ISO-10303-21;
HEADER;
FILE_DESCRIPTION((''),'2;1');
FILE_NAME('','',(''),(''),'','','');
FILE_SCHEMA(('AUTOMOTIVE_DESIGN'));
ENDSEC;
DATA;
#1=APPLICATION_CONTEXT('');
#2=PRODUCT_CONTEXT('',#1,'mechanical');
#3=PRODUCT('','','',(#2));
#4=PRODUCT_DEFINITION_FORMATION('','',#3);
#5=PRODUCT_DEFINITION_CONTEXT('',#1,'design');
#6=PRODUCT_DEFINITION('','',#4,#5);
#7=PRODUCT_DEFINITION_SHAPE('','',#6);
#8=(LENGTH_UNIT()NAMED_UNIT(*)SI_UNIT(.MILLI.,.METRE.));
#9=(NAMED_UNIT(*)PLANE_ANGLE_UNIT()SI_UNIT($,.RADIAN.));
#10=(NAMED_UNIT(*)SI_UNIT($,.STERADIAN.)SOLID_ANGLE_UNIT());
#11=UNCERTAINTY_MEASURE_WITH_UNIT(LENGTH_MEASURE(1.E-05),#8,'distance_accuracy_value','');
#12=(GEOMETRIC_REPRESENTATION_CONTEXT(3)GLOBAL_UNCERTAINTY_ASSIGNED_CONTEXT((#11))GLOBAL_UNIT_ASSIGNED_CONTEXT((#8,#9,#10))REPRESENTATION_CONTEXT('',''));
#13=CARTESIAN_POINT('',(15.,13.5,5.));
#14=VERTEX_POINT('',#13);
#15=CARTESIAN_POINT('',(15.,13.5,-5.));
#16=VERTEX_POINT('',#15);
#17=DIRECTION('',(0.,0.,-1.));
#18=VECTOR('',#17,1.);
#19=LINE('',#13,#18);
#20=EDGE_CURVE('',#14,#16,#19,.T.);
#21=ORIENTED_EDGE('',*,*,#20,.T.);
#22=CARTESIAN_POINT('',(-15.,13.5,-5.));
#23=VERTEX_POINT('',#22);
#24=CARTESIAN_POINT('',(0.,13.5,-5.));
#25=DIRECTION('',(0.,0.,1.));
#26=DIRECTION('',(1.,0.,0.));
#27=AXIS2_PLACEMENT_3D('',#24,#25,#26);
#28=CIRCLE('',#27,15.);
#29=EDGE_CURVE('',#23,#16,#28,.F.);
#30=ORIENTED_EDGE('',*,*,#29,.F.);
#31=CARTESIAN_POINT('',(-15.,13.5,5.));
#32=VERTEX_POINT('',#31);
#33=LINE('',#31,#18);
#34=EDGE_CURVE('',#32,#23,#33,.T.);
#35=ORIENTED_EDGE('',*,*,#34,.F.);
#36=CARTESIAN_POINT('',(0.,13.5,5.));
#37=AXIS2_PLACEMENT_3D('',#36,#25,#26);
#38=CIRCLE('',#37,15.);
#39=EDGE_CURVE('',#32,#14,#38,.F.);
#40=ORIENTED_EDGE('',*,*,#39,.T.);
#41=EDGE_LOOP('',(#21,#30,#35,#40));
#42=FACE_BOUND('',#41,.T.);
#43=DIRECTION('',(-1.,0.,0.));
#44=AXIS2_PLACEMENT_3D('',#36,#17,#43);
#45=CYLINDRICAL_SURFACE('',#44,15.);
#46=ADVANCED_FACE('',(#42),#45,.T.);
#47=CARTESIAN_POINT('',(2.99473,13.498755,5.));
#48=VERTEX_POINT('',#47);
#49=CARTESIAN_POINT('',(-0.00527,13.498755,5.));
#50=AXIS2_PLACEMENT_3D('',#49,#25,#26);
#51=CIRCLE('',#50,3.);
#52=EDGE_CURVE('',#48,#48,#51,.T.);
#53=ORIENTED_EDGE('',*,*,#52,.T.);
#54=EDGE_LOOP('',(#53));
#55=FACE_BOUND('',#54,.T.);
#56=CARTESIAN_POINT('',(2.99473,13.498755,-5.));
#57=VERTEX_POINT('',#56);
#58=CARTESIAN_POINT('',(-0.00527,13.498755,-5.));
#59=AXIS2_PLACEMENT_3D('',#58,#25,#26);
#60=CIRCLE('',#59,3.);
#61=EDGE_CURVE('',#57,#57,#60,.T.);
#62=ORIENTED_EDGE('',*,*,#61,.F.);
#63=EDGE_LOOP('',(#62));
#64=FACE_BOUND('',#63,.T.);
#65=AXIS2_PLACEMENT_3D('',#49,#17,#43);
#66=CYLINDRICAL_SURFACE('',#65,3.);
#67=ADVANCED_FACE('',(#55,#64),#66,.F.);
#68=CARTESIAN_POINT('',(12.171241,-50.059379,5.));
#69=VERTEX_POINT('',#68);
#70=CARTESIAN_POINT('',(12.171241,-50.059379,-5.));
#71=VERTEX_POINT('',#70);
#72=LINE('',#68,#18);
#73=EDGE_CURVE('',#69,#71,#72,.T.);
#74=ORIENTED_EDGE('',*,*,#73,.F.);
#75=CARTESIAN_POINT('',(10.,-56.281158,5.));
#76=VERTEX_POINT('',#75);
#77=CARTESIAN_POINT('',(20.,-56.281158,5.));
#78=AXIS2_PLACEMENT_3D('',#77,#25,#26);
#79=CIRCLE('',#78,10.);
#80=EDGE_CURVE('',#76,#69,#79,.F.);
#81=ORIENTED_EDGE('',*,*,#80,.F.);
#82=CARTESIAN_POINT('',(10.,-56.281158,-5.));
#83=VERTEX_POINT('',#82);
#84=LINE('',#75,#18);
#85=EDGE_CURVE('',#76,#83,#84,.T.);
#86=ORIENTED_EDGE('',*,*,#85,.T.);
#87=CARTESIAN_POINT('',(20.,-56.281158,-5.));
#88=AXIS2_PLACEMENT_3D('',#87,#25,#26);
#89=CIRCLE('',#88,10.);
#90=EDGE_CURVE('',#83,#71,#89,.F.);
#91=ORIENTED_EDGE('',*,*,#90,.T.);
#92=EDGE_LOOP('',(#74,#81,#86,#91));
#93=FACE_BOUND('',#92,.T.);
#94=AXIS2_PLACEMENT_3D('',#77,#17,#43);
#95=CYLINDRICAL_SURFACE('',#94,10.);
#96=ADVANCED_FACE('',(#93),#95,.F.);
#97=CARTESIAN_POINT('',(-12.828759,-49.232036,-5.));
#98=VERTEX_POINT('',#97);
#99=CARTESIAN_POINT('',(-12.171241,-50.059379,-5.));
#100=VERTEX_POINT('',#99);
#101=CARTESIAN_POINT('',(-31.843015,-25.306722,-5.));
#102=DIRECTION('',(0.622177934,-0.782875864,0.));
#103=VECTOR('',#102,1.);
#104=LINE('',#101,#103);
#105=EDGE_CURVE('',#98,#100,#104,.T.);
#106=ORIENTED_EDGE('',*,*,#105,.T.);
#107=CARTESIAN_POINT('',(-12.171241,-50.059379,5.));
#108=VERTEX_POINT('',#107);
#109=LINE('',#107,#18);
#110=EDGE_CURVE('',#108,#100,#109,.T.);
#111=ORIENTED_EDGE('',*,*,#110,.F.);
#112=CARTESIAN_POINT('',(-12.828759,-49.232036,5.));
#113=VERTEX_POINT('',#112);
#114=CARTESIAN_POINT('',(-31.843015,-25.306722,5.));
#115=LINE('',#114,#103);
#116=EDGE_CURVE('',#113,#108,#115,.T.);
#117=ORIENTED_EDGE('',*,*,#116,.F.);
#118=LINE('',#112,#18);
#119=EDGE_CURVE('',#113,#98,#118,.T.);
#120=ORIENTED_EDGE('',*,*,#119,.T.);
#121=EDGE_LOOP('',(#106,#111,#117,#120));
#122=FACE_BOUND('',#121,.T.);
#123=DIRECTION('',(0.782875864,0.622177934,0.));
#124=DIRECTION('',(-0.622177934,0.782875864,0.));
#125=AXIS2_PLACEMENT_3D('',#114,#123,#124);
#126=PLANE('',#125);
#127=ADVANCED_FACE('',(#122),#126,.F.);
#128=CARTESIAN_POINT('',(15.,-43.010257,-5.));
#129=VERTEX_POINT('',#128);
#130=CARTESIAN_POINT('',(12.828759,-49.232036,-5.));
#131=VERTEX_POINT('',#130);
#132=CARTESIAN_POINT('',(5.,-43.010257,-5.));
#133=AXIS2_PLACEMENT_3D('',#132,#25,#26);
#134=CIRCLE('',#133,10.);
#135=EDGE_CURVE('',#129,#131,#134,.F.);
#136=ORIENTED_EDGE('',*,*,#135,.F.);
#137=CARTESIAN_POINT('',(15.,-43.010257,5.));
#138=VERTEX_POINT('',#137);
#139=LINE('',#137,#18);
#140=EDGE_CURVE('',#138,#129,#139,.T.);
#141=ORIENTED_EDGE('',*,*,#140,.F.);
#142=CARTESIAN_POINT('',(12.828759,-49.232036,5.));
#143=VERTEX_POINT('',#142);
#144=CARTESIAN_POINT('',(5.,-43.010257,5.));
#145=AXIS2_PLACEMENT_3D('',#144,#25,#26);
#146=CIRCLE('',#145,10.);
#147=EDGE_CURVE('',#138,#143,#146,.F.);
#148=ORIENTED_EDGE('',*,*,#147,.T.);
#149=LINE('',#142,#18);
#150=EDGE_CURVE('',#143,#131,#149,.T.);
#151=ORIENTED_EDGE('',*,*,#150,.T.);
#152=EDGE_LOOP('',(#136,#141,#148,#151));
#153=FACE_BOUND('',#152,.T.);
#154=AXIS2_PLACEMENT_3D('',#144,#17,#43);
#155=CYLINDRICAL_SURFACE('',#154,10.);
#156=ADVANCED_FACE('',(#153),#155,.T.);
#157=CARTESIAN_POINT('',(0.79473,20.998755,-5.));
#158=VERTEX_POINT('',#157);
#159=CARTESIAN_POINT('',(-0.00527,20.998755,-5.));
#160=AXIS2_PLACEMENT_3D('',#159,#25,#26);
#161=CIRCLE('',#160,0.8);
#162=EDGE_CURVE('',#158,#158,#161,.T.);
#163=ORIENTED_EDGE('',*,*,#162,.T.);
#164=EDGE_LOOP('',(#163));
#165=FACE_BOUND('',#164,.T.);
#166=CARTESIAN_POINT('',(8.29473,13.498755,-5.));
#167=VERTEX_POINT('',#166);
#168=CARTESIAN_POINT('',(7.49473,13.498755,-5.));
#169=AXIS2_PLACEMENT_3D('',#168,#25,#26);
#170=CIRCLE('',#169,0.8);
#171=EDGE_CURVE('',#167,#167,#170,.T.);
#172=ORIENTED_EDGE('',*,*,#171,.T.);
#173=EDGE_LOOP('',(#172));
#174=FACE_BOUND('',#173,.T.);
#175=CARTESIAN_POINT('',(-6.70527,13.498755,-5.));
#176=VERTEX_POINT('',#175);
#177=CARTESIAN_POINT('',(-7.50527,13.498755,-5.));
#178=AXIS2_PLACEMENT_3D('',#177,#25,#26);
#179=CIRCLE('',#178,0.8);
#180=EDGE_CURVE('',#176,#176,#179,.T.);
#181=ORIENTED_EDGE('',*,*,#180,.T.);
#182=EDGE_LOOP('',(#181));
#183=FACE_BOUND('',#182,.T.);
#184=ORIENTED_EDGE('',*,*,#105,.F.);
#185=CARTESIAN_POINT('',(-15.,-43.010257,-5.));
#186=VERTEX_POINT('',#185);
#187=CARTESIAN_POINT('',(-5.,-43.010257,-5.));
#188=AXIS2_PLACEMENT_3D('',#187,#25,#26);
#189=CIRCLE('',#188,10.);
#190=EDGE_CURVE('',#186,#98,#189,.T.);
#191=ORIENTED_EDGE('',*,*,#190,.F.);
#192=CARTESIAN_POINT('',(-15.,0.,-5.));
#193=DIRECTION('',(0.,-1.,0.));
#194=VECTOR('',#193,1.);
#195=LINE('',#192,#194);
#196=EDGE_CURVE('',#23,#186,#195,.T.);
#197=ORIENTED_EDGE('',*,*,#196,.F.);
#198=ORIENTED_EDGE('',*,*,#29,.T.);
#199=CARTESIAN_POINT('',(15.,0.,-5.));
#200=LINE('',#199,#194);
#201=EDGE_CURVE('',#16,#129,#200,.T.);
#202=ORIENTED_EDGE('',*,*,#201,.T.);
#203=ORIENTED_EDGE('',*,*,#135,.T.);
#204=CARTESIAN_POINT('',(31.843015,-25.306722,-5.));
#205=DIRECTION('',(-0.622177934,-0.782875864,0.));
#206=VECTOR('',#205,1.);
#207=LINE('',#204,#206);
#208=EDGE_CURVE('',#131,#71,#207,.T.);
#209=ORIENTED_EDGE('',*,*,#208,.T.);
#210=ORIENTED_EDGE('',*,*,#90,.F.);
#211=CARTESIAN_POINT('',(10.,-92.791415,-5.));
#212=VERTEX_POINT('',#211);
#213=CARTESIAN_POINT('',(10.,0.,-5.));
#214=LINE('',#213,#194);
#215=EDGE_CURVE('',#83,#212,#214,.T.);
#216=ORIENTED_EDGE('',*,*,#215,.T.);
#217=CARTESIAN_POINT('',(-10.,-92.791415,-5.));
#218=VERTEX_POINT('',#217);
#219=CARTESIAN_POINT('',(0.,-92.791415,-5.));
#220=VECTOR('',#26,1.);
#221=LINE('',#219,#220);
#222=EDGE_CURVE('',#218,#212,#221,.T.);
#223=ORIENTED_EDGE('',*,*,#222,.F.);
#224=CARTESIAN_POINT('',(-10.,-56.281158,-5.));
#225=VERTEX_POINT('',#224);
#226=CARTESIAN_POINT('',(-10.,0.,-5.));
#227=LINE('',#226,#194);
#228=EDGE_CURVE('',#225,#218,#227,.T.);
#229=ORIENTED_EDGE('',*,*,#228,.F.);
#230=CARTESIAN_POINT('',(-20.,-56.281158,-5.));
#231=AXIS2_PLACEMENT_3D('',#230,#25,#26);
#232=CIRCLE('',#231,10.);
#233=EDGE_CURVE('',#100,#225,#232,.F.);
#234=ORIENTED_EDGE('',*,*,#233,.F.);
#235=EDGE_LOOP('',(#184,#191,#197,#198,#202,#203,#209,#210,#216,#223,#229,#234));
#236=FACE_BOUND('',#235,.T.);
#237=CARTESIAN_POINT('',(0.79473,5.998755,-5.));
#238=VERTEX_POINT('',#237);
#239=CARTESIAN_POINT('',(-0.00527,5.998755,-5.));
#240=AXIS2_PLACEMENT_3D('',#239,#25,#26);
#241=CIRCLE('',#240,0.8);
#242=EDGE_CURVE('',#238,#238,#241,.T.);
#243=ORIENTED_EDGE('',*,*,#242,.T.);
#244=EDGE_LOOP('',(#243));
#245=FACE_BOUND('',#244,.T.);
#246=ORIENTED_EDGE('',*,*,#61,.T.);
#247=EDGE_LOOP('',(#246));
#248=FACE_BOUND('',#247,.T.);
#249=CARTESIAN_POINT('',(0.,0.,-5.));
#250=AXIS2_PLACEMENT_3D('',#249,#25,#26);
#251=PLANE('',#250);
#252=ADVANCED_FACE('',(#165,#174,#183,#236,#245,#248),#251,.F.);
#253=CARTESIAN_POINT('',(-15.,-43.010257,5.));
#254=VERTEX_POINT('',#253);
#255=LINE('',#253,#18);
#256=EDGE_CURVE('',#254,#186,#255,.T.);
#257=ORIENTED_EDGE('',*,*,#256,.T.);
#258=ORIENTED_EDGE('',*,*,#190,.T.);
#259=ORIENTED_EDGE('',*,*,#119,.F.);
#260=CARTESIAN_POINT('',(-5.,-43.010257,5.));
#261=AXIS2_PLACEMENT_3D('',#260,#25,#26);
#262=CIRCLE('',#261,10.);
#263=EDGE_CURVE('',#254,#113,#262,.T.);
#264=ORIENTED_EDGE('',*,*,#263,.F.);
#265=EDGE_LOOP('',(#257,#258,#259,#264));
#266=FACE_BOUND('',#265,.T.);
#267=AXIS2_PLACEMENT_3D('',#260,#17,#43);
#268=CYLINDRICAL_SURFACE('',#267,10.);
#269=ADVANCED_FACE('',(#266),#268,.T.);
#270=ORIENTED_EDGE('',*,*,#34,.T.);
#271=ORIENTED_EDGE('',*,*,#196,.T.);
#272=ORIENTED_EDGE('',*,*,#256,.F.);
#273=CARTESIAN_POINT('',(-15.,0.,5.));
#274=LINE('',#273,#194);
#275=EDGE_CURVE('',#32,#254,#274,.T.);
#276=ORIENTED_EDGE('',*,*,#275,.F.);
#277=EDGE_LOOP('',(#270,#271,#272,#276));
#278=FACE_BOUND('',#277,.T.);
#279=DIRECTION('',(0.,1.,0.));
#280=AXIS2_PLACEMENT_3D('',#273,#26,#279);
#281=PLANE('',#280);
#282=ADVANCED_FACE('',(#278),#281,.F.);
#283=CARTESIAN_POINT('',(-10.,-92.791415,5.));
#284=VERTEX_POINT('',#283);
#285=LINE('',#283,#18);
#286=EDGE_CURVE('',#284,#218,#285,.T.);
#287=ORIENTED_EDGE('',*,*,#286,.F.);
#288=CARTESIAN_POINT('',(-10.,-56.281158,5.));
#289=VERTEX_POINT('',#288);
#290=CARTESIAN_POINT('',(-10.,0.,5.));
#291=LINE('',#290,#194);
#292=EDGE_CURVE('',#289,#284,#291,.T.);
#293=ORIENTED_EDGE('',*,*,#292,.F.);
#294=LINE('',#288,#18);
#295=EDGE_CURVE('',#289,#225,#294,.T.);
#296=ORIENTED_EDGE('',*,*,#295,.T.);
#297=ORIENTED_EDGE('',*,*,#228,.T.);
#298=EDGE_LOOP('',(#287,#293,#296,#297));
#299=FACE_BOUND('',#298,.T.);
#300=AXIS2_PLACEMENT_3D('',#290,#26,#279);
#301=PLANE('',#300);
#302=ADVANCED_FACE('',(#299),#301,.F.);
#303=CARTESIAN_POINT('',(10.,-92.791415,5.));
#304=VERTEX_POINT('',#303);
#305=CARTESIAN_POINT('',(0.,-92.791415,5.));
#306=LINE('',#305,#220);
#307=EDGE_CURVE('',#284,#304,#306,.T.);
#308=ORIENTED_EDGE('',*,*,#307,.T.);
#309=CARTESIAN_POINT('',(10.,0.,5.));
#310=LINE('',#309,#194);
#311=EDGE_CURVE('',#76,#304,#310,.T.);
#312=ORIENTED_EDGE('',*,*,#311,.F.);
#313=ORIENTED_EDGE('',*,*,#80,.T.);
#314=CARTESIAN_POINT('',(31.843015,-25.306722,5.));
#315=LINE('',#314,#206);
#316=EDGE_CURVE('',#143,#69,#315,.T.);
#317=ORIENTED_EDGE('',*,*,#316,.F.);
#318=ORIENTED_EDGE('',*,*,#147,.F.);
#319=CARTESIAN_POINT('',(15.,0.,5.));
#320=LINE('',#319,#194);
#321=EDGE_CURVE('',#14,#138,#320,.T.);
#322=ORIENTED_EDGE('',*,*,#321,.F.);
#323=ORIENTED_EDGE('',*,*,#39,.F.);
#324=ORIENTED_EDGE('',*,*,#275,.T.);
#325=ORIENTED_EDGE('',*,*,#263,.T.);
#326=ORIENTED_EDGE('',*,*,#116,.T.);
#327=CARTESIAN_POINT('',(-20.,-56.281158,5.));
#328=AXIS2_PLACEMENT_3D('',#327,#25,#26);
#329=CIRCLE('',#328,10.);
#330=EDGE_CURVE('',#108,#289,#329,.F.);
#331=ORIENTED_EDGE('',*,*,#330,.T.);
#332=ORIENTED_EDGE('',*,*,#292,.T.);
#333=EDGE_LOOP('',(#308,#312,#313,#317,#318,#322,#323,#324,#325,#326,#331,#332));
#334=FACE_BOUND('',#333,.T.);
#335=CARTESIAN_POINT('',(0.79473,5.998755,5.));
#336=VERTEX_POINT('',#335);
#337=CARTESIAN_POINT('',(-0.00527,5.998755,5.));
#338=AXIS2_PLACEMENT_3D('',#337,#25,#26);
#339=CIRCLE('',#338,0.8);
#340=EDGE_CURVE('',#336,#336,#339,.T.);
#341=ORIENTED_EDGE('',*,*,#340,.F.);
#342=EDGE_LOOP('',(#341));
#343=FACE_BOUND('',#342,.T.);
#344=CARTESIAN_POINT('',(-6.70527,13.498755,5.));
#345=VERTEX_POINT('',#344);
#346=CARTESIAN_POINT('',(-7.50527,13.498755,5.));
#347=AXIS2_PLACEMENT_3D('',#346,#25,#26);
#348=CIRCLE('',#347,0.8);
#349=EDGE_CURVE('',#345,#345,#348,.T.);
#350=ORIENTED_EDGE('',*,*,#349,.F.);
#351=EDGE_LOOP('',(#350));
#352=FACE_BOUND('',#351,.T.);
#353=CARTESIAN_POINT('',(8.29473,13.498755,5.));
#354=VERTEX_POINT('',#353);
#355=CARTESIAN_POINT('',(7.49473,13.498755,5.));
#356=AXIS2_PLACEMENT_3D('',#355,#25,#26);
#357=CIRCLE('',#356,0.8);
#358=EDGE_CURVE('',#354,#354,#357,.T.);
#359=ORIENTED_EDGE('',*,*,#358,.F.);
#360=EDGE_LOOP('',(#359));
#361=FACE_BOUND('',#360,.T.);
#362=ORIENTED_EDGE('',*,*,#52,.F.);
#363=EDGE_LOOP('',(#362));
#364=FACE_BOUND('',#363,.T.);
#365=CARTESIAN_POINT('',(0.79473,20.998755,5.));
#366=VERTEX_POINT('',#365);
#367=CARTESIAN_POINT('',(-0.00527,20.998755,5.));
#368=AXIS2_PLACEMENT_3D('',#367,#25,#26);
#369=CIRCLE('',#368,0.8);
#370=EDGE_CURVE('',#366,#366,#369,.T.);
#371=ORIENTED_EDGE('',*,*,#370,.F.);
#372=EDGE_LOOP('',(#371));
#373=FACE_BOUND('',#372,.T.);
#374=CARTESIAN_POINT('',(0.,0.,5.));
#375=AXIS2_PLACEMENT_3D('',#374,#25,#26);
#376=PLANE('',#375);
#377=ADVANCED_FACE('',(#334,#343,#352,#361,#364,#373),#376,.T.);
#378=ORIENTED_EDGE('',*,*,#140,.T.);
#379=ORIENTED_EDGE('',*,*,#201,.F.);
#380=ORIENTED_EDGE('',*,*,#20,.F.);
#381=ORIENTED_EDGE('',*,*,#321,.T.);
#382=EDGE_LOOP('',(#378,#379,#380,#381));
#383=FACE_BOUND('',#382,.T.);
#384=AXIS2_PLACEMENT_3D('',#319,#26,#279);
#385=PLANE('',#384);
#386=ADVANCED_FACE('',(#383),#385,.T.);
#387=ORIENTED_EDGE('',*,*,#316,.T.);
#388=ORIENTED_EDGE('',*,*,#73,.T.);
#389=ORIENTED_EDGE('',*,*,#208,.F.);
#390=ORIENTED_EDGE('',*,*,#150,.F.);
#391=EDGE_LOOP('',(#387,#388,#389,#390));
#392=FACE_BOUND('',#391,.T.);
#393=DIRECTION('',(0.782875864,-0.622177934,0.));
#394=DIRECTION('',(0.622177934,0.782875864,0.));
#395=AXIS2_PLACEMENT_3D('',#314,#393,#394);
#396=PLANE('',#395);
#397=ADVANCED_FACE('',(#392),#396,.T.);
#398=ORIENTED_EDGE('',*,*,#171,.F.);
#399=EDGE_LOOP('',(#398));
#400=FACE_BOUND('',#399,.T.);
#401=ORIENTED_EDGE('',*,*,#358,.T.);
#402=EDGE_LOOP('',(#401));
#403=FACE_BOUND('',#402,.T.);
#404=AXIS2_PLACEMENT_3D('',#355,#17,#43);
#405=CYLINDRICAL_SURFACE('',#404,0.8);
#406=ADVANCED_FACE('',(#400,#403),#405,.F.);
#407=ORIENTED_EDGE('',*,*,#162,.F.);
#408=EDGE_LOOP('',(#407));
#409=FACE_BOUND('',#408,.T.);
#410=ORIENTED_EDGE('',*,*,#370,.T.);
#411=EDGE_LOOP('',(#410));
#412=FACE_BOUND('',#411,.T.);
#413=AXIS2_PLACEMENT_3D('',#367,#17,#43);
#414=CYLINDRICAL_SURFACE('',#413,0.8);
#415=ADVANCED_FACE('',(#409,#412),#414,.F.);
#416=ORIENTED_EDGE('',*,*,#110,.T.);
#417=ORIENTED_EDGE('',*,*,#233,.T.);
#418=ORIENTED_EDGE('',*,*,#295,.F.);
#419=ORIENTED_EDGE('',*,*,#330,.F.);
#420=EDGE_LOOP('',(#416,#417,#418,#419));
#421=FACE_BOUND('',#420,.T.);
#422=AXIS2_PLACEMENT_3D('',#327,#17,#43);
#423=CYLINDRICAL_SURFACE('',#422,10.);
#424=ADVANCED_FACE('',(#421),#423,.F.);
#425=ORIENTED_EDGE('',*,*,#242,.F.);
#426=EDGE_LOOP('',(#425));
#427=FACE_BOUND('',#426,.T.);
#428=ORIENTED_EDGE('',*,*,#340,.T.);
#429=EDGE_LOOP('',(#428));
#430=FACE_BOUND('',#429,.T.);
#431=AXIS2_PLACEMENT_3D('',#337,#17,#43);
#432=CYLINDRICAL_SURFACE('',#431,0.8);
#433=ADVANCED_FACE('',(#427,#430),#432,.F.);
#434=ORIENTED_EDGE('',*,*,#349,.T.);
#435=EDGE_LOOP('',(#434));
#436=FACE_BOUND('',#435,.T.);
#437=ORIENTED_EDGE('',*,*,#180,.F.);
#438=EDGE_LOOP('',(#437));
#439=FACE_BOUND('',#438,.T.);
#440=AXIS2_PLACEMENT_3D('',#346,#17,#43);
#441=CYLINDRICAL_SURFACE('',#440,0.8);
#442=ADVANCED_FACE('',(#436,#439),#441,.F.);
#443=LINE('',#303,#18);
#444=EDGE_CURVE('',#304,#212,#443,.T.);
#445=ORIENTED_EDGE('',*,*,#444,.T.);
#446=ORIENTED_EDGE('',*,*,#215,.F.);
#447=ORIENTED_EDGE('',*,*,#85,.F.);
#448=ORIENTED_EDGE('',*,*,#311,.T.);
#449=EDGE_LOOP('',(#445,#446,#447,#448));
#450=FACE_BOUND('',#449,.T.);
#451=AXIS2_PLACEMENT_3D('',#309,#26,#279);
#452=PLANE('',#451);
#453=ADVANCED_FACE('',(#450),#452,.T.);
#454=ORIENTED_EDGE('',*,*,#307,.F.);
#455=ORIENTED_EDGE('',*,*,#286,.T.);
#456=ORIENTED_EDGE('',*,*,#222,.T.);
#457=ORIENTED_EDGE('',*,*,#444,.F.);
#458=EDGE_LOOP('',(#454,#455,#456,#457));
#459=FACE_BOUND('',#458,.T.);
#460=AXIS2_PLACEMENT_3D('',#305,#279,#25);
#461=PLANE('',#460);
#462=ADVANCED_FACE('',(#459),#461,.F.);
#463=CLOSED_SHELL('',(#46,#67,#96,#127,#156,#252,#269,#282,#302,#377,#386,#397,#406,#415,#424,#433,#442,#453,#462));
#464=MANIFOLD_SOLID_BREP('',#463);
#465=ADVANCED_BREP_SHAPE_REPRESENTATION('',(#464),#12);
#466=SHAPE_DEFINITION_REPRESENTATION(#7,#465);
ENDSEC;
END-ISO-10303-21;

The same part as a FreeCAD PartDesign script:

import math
import FreeCAD as App
import Part
import Sketcher
Q = App.Units.Quantity

doc = App.newDocument("Part")
body = doc.addObject("PartDesign::Body", "Body")

# Sketch on XY plane
sketch1 = body.newObject("Sketcher::SketchObject", "Sketch")
sketch1.AttachmentSupport = (doc.getObject("XY_Plane"), [""])
sketch1.MapMode = "FlatFace"
sketch1.addGeometry([
    Part.LineSegment(App.Vector(-15, 13.5, 0), App.Vector(-15, -43, 0)),  # 0
    Part.ArcOfCircle(Part.Circle(App.Vector(-5, -43, 0), App.Vector(0, 0, 1), 10), math.radians(180), math.radians(218)),  # 1
    Part.LineSegment(App.Vector(-12.8, -49.2, 0), App.Vector(-12.2, -50.1, 0)),  # 2
    Part.ArcOfCircle(Part.Circle(App.Vector(-20, -56.3, 0), App.Vector(0, 0, 1), 10), math.radians(0), math.radians(38)),  # 3
    Part.LineSegment(App.Vector(-10, -56.3, 0), App.Vector(-10, -92.8, 0)),  # 4
    Part.LineSegment(App.Vector(-10, -92.8, 0), App.Vector(10, -92.8, 0)),  # 5
    Part.LineSegment(App.Vector(10, -92.8, 0), App.Vector(10, -56.3, 0)),  # 6
    Part.ArcOfCircle(Part.Circle(App.Vector(20, -56.3, 0), App.Vector(0, 0, 1), 10), math.radians(142), math.radians(180)),  # 7
    Part.LineSegment(App.Vector(12.2, -50.1, 0), App.Vector(12.8, -49.2, 0)),  # 8
    Part.ArcOfCircle(Part.Circle(App.Vector(5, -43, 0), App.Vector(0, 0, 1), 10), math.radians(-38), math.radians(0)),  # 9
    Part.LineSegment(App.Vector(15, -43, 0), App.Vector(15, 13.5, 0)),  # 10
    Part.ArcOfCircle(Part.Circle(App.Vector(0, 13.5, 0), App.Vector(0, 0, 1), 15), math.radians(0), math.radians(180)),  # 11
    Part.Circle(App.Vector(0, 6, 0), App.Vector(0, 0, 1), 0.8),  # 12
    Part.Circle(App.Vector(-7.5, 13.5, 0), App.Vector(0, 0, 1), 0.8),  # 13
    Part.Circle(App.Vector(0, 13.5, 0), App.Vector(0, 0, 1), 3),  # 14
    Part.Circle(App.Vector(7.5, 13.5, 0), App.Vector(0, 0, 1), 0.8),  # 15
    Part.Circle(App.Vector(0, 21, 0), App.Vector(0, 0, 1), 0.8),  # 16
], False)
sketch1.addConstraint([
    Sketcher.Constraint("Tangent", 0, 2, 1, 1),
    Sketcher.Constraint("Tangent", 1, 2, 2, 1),
    Sketcher.Constraint("Tangent", 2, 2, 3, 2),
    Sketcher.Constraint("Tangent", 3, 1, 4, 1),
    Sketcher.Constraint("Coincident", 4, 2, 5, 1),
    Sketcher.Constraint("Coincident", 5, 2, 6, 1),
    Sketcher.Constraint("Tangent", 6, 2, 7, 2),
    Sketcher.Constraint("Tangent", 7, 1, 8, 1),
    Sketcher.Constraint("Tangent", 8, 2, 9, 1),
    Sketcher.Constraint("Tangent", 9, 2, 10, 1),
    Sketcher.Constraint("Tangent", 10, 2, 11, 1),
    Sketcher.Constraint("Tangent", 11, 2, 0, 1),
    Sketcher.Constraint("Vertical", 0),
    Sketcher.Constraint("Vertical", 4),
    Sketcher.Constraint("Horizontal", 5),
    Sketcher.Constraint("Vertical", 6),
    Sketcher.Constraint("Vertical", 10),
    Sketcher.Constraint("Equal", 1, 3),
    Sketcher.Constraint("Equal", 3, 7),
    Sketcher.Constraint("Equal", 7, 9),
    Sketcher.Constraint("Equal", 12, 13),
    Sketcher.Constraint("Equal", 13, 15),
    Sketcher.Constraint("Equal", 15, 16),
    Sketcher.Constraint("Symmetric", 3, 3, 7, 3, -2),
    Sketcher.Constraint("Symmetric", 1, 3, 9, 3, -2),
    Sketcher.Constraint("Horizontal", 13, 3, 14, 3),
    Sketcher.Constraint("Horizontal", 14, 3, 15, 3),
    Sketcher.Constraint("Vertical", 12, 3, 14, 3),
    Sketcher.Constraint("Vertical", 14, 3, 16, 3),
    Sketcher.Constraint("Diameter", 14, Q("6 mm")),
    Sketcher.Constraint("Radius", 1, Q("10 mm")),
    Sketcher.Constraint("Radius", 11, Q("15 mm")),
    Sketcher.Constraint("Diameter", 12, Q("1.6 mm")),
    Sketcher.Constraint("DistanceX", 5, 1, 5, 2, Q("20 mm")),
    Sketcher.Constraint("DistanceX", 13, 3, 15, 3, Q("15 mm")),
    Sketcher.Constraint("DistanceY", 12, 3, 16, 3, Q("15 mm")),
    Sketcher.Constraint("DistanceY", -1, 1, 11, 3, Q("13.5 mm")),
    Sketcher.Constraint("DistanceX", 13, 3, 12, 3, Q("7.5 mm")),
    Sketcher.Constraint("DistanceY", 12, 3, 13, 3, Q("7.5 mm")),
    Sketcher.Constraint("Distance", 2, Q("1.056799 mm")),
    Sketcher.Constraint("DistanceY", 0, 2, 0, 1, Q("56.510257 mm")),
    Sketcher.Constraint("DistanceY", 4, 2, 4, 1, Q("36.510257 mm")),
    Sketcher.Constraint("DistanceX", 12, 3, -1, 1, Q("0.00527 mm")),
    Sketcher.Constraint("DistanceY", 1, 3, 12, 3, Q("49.009011 mm")),
])
pad1 = body.newObject("PartDesign::Pad", "Pad")
pad1.Profile = sketch1
pad1.Length = 10
pad1.Midplane = True

doc.recompute()
